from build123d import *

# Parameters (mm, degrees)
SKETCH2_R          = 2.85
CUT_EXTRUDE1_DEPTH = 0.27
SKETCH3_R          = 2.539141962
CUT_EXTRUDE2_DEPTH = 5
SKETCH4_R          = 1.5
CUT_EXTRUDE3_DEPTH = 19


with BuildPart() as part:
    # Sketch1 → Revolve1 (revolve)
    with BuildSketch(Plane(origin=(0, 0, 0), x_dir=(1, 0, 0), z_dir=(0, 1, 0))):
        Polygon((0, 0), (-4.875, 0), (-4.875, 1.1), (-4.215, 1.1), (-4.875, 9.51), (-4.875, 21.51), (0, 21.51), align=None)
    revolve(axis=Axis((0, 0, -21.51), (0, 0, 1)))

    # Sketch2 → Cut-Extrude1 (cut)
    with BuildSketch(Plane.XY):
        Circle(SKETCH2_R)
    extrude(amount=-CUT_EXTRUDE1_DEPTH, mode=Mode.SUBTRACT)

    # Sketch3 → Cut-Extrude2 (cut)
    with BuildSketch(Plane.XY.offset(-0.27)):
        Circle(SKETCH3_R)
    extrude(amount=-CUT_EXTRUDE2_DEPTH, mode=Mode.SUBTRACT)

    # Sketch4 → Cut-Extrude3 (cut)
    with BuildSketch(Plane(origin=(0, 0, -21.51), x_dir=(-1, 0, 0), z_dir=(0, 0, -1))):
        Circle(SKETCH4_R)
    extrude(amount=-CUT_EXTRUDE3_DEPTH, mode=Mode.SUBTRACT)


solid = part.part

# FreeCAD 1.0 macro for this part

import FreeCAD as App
import Part
import Sketcher
from FreeCAD import Vector

doc = App.newDocument("Part")
body = doc.addObject("PartDesign::Body", "Body")

# Sketch on XZ plane
sketch1 = body.newObject("Sketcher::SketchObject", "Sketch")
sketch1.AttachmentSupport = (doc.getObject("XZ_Plane"), [""])
sketch1.MapMode = "FlatFace"
sketch1.addGeometry(Part.LineSegment(Vector(-4.875, 0, 0), Vector(0, 0, 0)), False)
sketch1.addGeometry(Part.LineSegment(Vector(0, 0, 0), Vector(0, -21.51, 0)), False)
sketch1.addGeometry(Part.LineSegment(Vector(0, -21.51, 0), Vector(-4.875, -21.51, 0)), False)
sketch1.addGeometry(Part.LineSegment(Vector(-4.875, -21.51, 0), Vector(-4.875, -9.51, 0)), False)
sketch1.addGeometry(Part.LineSegment(Vector(-4.875, -9.51, 0), Vector(-4.215, -1.1, 0)), False)
sketch1.addGeometry(Part.LineSegment(Vector(-4.215, -1.1, 0), Vector(-4.875, -1.1, 0)), False)
sketch1.addGeometry(Part.LineSegment(Vector(-4.875, -1.1, 0), Vector(-4.875, 0, 0)), False)
sketch1.addConstraint(Sketcher.Constraint("Coincident", 0, 2, 1, 1))
sketch1.addConstraint(Sketcher.Constraint("Coincident", 1, 2, 2, 1))
sketch1.addConstraint(Sketcher.Constraint("Coincident", 2, 2, 3, 1))
sketch1.addConstraint(Sketcher.Constraint("Coincident", 3, 2, 4, 1))
sketch1.addConstraint(Sketcher.Constraint("Coincident", 4, 2, 5, 1))
sketch1.addConstraint(Sketcher.Constraint("Coincident", 5, 2, 6, 1))
sketch1.addConstraint(Sketcher.Constraint("Coincident", 6, 2, 0, 1))
sketch1.addConstraint(Sketcher.Constraint("Horizontal", 0))
sketch1.addConstraint(Sketcher.Constraint("Vertical", 1))
sketch1.addConstraint(Sketcher.Constraint("Horizontal", 2))
sketch1.addConstraint(Sketcher.Constraint("Vertical", 3))
sketch1.addConstraint(Sketcher.Constraint("Horizontal", 5))
sketch1.addConstraint(Sketcher.Constraint("Vertical", 6))
sketch1.addConstraint(Sketcher.Constraint("Coincident", 0, 2, -1, 1))
sketch1.addConstraint(Sketcher.Constraint("Vertical", 3, 2, 5, 2))
sketch1.addConstraint(Sketcher.Constraint("DistanceY", 3, 1, 3, 2, 12.0))
sketch1.addConstraint(Sketcher.Constraint("DistanceY", 6, 1, 6, 2, 1.1))
sketch1.addConstraint(Sketcher.Constraint("DistanceX", 5, 2, 5, 1, 0.66))
sketch1.addConstraint(Sketcher.Constraint("DistanceY", 1, 2, 1, 1, 21.51))
sketch1.addConstraint(Sketcher.Constraint("DistanceX", 0, 1, 0, 2, 4.875))
revolution = body.newObject("PartDesign::Revolution", "Revolution")
revolution.Profile = sketch1
revolution.ReferenceAxis = (sketch1, ["V_Axis"])
revolution.Angle = 360

# Sketch on XY plane
sketch2 = body.newObject("Sketcher::SketchObject", "Sketch001")
sketch2.AttachmentSupport = (doc.getObject("XY_Plane"), [""])
sketch2.MapMode = "FlatFace"
sketch2.addGeometry(Part.Circle(Vector(0, 0, 0), Vector(0, 0, 1), 2.85), False)
sketch2.addConstraint(Sketcher.Constraint("Coincident", 0, 3, -1, 1))
sketch2.addConstraint(Sketcher.Constraint("Diameter", 0, 5.7))
pocket1 = body.newObject("PartDesign::Pocket", "Pocket")
pocket1.Profile = sketch2
pocket1.Length = 0.27

# Sketch on XY plane
sketch3 = body.newObject("Sketcher::SketchObject", "Sketch002")
sketch3.AttachmentSupport = (doc.getObject("XY_Plane"), [""])
sketch3.MapMode = "FlatFace"
sketch3.AttachmentOffset = App.Placement(Vector(0, 0, -0.27), App.Rotation())
sketch3.addGeometry(Part.Circle(Vector(0, 0, 0), Vector(0, 0, 1), 2.539142), False)
sketch3.addConstraint(Sketcher.Constraint("Coincident", 0, 3, -1, 1))
sketch3.addConstraint(Sketcher.Constraint("Diameter", 0, 5.078284))
pocket2 = body.newObject("PartDesign::Pocket", "Pocket001")
pocket2.Profile = sketch3
pocket2.Length = 5

# Sketch on XY plane
sketch4 = body.newObject("Sketcher::SketchObject", "Sketch003")
sketch4.AttachmentSupport = (doc.getObject("XY_Plane"), [""])
sketch4.MapMode = "FlatFace"
sketch4.AttachmentOffset = App.Placement(Vector(0, 0, -21.51), App.Rotation())
sketch4.addGeometry(Part.Circle(Vector(0, 0, 0), Vector(0, 0, 1), 1.5), False)
sketch4.addConstraint(Sketcher.Constraint("Coincident", 0, 3, -1, 1))
sketch4.addConstraint(Sketcher.Constraint("Diameter", 0, 3.0))
pocket3 = body.newObject("PartDesign::Pocket", "Pocket002")
pocket3.Profile = sketch4
pocket3.Length = 19
pocket3.Reversed = True

doc.recompute()
